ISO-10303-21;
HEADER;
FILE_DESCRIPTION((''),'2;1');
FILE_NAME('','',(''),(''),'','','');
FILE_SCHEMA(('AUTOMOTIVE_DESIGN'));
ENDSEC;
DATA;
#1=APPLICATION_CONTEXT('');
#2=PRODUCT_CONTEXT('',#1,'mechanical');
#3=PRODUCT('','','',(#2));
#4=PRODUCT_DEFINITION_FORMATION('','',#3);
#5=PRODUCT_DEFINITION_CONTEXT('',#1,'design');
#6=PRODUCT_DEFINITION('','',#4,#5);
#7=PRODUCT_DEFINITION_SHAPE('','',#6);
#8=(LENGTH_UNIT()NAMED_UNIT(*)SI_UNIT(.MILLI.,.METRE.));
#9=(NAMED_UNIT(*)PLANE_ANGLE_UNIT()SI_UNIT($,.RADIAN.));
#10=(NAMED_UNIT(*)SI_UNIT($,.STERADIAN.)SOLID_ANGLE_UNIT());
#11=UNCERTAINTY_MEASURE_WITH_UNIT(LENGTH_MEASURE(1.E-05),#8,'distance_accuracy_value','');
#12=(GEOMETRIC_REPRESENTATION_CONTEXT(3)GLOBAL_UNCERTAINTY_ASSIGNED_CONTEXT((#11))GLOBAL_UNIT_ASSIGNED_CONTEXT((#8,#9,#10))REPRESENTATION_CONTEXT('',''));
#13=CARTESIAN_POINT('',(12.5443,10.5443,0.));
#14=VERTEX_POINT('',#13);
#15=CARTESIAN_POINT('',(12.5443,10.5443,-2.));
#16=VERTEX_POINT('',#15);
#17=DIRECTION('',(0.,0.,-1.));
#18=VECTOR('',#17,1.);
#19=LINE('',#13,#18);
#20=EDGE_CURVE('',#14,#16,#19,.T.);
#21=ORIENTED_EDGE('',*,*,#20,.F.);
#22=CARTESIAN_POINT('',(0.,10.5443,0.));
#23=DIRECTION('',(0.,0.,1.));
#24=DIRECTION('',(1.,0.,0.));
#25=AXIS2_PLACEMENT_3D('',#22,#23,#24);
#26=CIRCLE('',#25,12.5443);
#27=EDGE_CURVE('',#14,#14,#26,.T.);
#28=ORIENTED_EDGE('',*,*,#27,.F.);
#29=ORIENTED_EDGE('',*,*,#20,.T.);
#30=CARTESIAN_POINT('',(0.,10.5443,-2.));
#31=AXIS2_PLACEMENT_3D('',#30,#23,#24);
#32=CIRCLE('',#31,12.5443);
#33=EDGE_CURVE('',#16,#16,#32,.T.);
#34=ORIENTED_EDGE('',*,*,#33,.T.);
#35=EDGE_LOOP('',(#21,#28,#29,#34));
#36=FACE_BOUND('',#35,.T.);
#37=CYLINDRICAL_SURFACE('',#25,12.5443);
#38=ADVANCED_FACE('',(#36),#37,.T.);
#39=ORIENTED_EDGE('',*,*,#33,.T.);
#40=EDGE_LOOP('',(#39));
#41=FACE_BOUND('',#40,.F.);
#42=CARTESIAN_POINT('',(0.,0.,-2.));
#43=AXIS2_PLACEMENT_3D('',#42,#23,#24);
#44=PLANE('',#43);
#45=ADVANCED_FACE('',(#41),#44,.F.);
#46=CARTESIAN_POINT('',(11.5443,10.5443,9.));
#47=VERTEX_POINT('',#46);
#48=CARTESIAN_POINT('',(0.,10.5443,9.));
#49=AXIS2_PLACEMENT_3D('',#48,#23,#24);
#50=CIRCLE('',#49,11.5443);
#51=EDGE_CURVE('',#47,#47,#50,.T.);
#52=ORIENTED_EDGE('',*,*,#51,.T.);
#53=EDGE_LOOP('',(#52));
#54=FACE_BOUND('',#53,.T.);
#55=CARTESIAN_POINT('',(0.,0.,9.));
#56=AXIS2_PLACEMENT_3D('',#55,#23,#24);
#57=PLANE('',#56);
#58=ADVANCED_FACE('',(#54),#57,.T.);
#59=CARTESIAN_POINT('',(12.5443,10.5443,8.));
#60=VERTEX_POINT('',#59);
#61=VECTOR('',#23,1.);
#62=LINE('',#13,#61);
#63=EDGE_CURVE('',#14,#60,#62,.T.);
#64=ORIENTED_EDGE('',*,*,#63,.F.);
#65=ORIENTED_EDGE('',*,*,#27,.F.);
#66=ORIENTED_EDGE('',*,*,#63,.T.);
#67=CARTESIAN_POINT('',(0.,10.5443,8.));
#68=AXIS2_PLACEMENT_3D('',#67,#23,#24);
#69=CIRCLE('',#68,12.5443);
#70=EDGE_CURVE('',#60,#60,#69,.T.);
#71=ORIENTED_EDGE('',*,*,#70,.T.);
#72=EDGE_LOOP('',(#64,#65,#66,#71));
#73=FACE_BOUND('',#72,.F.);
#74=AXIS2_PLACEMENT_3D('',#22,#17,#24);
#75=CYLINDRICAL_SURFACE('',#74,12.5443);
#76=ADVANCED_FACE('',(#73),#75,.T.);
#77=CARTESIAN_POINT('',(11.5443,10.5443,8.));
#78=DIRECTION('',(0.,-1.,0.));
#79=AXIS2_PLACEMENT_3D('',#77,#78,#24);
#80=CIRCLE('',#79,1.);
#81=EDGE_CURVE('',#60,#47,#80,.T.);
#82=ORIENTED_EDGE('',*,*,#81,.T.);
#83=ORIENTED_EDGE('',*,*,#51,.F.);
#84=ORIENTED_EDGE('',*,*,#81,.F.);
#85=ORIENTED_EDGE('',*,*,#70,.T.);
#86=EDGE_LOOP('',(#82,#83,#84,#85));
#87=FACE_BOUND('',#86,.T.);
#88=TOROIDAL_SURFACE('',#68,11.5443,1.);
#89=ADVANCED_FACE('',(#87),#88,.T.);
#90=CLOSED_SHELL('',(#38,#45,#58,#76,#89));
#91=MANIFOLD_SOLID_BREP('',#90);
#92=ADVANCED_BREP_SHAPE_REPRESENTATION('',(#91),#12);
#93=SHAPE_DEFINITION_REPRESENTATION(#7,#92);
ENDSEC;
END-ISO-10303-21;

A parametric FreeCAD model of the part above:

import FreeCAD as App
import Part
import Sketcher


def edges_at(feature, points):
    """Names of the edges that pass closest to the given points."""
    edges = feature.Shape.Edges
    near = lambda p: min(range(len(edges)), key=lambda i: edges[i].distToShape(Part.Vertex(*p))[0])
    return sorted({f"Edge{near(p) + 1}" for p in points})

doc = App.newDocument("Part")
params = doc.addObject("Spreadsheet::Sheet", "Params")
for row, (alias, value) in enumerate([
    ("pad1_length", "9 mm"),
    ("pad1_length2", "2 mm"),
    ("fillet_radius", "1 mm"),
], start=1):
    params.set(f"A{row}", alias)
    params.set(f"B{row}", "=" + value)
    params.setAlias(f"B{row}", alias)

body = doc.addObject("PartDesign::Body", "Body")

# Sketch on XY plane
sketch1 = doc.addObject("Sketcher::SketchObject", "Sketch")
body.addObject(sketch1)
sketch1.AttachmentSupport = (doc.XY_Plane, [""])
sketch1.MapMode = "FlatFace"
sketch1.addGeometry(Part.Circle(App.Vector(0, 11, 0), App.Vector(0, 0, 1), 13), False)
sketch1.addConstraint(Sketcher.Constraint("PointOnObject", 0, 3, -2))
sketch1.addConstraint(Sketcher.Constraint("Diameter", 0, 25.0886))
sketch1.addConstraint(Sketcher.Constraint("DistanceY", -1, 1, 0, 3, 10.5443))
pad1 = doc.addObject("PartDesign::Pad", "Pad")
body.addObject(pad1)
pad1.Profile = sketch1
pad1.Type = "TwoLengths"
pad1.setExpression("Length", "Params.pad1_length")
pad1.setExpression("Length2", "Params.pad1_length2")
doc.recompute()

fillet = doc.addObject("PartDesign::Fillet", "Fillet")
body.addObject(fillet)
fillet.Base = (pad1, edges_at(pad1, [(-12.544, 10.544, 9)]))
fillet.setExpression("Radius", "Params.fillet_radius")

doc.recompute()
